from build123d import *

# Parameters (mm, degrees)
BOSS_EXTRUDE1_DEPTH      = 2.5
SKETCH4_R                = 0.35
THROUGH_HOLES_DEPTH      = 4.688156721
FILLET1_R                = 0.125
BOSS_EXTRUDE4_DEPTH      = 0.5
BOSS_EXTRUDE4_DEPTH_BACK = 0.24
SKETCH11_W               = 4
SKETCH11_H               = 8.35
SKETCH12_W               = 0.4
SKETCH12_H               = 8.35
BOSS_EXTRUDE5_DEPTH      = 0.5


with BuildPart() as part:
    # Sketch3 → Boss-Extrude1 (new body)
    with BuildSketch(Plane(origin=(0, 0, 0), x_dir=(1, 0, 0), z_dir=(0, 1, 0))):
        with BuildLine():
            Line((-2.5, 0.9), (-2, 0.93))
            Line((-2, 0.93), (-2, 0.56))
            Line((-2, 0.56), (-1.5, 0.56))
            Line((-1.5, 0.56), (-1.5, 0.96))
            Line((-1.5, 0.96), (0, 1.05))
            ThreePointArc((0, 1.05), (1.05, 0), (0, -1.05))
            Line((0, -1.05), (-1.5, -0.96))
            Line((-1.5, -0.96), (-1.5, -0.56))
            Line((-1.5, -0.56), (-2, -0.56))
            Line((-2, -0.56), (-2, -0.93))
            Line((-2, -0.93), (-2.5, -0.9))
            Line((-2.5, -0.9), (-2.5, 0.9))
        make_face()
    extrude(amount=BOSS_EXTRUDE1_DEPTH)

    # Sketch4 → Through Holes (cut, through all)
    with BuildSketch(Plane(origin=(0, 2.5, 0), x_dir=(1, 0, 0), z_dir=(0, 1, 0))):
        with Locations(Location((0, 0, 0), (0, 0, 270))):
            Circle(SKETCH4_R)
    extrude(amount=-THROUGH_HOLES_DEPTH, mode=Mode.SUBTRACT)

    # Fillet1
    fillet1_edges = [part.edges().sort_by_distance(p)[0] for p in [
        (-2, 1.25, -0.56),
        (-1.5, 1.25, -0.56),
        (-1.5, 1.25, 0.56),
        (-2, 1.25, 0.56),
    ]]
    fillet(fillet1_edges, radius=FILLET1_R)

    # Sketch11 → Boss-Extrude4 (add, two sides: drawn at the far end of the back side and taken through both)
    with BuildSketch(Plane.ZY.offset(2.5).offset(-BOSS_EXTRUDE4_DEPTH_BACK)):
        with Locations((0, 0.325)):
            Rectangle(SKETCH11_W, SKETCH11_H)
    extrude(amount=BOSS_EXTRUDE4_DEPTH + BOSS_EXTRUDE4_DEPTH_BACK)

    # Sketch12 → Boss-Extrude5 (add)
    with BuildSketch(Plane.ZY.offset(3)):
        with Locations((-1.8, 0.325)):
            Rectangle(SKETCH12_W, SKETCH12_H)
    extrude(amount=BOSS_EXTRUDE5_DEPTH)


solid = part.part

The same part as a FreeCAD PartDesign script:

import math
import FreeCAD as App
import Part
import Sketcher


def edges_at(feature, points):
    """Names of the edges that pass closest to the given points."""
    edges = feature.Shape.Edges
    near = lambda p: min(range(len(edges)), key=lambda i: edges[i].distToShape(Part.Vertex(*p))[0])
    return sorted({f"Edge{near(p) + 1}" for p in points})


def add_polygon(sketch, points):
    """Adds a closed chain of lines whose ends are joined by coincident constraints."""
    first, n = sketch.GeometryCount, len(points)
    for a, b in zip(points, points[1:] + points[:1]):
        sketch.addGeometry(Part.LineSegment(App.Vector(*a, 0), App.Vector(*b, 0)), False)
    for i in range(n):
        sketch.addConstraint(Sketcher.Constraint("Coincident", first + i, 2, first + (i + 1) % n, 1))

doc = App.newDocument("Part")
body = doc.addObject("PartDesign::Body", "Body")

# Sketch on XZ plane
sketch1 = body.newObject("Sketcher::SketchObject", "Sketch")
sketch1.AttachmentSupport = (doc.getObject("XZ_Plane"), [""])
sketch1.MapMode = "FlatFace"
sketch1.addGeometry(Part.LineSegment(App.Vector(-2, -0.93, 0), App.Vector(-2.5, -0.9, 0)), False)
sketch1.addGeometry(Part.LineSegment(App.Vector(-2.5, -0.9, 0), App.Vector(-2.5, 0.9, 0)), False)
sketch1.addGeometry(Part.LineSegment(App.Vector(-2.5, 0.9, 0), App.Vector(-2, 0.93, 0)), False)
sketch1.addGeometry(Part.LineSegment(App.Vector(-2, 0.93, 0), App.Vector(-2, 0.56, 0)), False)
sketch1.addGeometry(Part.LineSegment(App.Vector(-2, 0.56, 0), App.Vector(-1.5, 0.56, 0)), False)
sketch1.addGeometry(Part.LineSegment(App.Vector(-1.5, 0.56, 0), App.Vector(-1.5, 0.96, 0)), False)
sketch1.addGeometry(Part.LineSegment(App.Vector(-1.5, 0.96, 0), App.Vector(0, 1.05, 0)), False)
sketch1.addGeometry(Part.ArcOfCircle(Part.Circle(App.Vector(0, 0, 0), App.Vector(0, 0, 1), 1.05), math.radians(-90), math.radians(90)), False)
sketch1.addGeometry(Part.LineSegment(App.Vector(0, -1.05, 0), App.Vector(-1.5, -0.96, 0)), False)
sketch1.addGeometry(Part.LineSegment(App.Vector(-1.5, -0.96, 0), App.Vector(-1.5, -0.56, 0)), False)
sketch1.addGeometry(Part.LineSegment(App.Vector(-1.5, -0.56, 0), App.Vector(-2, -0.56, 0)), False)
sketch1.addGeometry(Part.LineSegment(App.Vector(-2, -0.56, 0), App.Vector(-2, -0.93, 0)), False)
sketch1.addConstraint(Sketcher.Constraint("Coincident", 0, 2, 1, 1))
sketch1.addConstraint(Sketcher.Constraint("Coincident", 1, 2, 2, 1))
sketch1.addConstraint(Sketcher.Constraint("Coincident", 2, 2, 3, 1))
sketch1.addConstraint(Sketcher.Constraint("Coincident", 3, 2, 4, 1))
sketch1.addConstraint(Sketcher.Constraint("Coincident", 4, 2, 5, 1))
sketch1.addConstraint(Sketcher.Constraint("Coincident", 5, 2, 6, 1))
sketch1.addConstraint(Sketcher.Constraint("Coincident", 6, 2, 7, 2))
sketch1.addConstraint(Sketcher.Constraint("Coincident", 7, 1, 8, 1))
sketch1.addConstraint(Sketcher.Constraint("Coincident", 8, 2, 9, 1))
sketch1.addConstraint(Sketcher.Constraint("Coincident", 9, 2, 10, 1))
sketch1.addConstraint(Sketcher.Constraint("Coincident", 10, 2, 11, 1))
sketch1.addConstraint(Sketcher.Constraint("Coincident", 11, 2, 0, 1))
sketch1.addConstraint(Sketcher.Constraint("Vertical", 1))
sketch1.addConstraint(Sketcher.Constraint("Vertical", 3))
sketch1.addConstraint(Sketcher.Constraint("Horizontal", 4))
sketch1.addConstraint(Sketcher.Constraint("Vertical", 5))
sketch1.addConstraint(Sketcher.Constraint("Vertical", 9))
sketch1.addConstraint(Sketcher.Constraint("Horizontal", 10))
sketch1.addConstraint(Sketcher.Constraint("Vertical", 11))
sketch1.addConstraint(Sketcher.Constraint("Coincident", 7, 3, -1, 1))
sketch1.addConstraint(Sketcher.Constraint("Symmetric", 5, 2, 8, 2, -1))
sketch1.addConstraint(Sketcher.Constraint("Symmetric", 3, 2, 10, 2, -1))
sketch1.addConstraint(Sketcher.Constraint("PointOnObject", 6, 2, -2))
sketch1.addConstraint(Sketcher.Constraint("PointOnObject", 7, 1, -2))
sketch1.addConstraint(Sketcher.Constraint("Parallel", 2, 6))
sketch1.addConstraint(Sketcher.Constraint("Parallel", 0, 8))
sketch1.addConstraint(Sketcher.Constraint("Equal", 3, 11))
sketch1.addConstraint(Sketcher.Constraint("Radius", 7, 1.05))
sketch1.addConstraint(Sketcher.Constraint("DistanceX", 4, 1, 4, 2, 0.5))
sketch1.addConstraint(Sketcher.Constraint("DistanceY", 1, 1, 1, 2, 1.8))
sketch1.addConstraint(Sketcher.Constraint("DistanceY", 5, 1, 5, 2, 0.4))
sketch1.addConstraint(Sketcher.Constraint("DistanceX", 2, 2, -1, 1, 2.0))
sketch1.addConstraint(Sketcher.Constraint("DistanceX", 1, 2, 4, 2, 1.0))
sketch1.addConstraint(Sketcher.Constraint("DistanceY", 3, 2, 3, 1, 0.37))
pad1 = body.newObject("PartDesign::Pad", "Pad")
pad1.Profile = sketch1
pad1.Length = 2.5
pad1.Reversed = True

# Sketch on XZ plane
sketch2 = body.newObject("Sketcher::SketchObject", "Sketch001")
sketch2.AttachmentSupport = (doc.getObject("XZ_Plane"), [""])
sketch2.MapMode = "FlatFace"
sketch2.AttachmentOffset = App.Placement(App.Vector(0, 0, -2.5), App.Rotation())
sketch2.addGeometry(Part.Circle(App.Vector(0, 0, 0), App.Vector(0, 0, 1), 0.35), False)
sketch2.addConstraint(Sketcher.Constraint("Coincident", 0, 3, -1, 1))
sketch2.addConstraint(Sketcher.Constraint("Diameter", 0, 0.7))
pocket1 = body.newObject("PartDesign::Pocket", "Pocket")
pocket1.Profile = sketch2
pocket1.Type = "ThroughAll"
pocket1.Reversed = True
doc.recompute()

fillet = body.newObject("PartDesign::Fillet", "Fillet")
fillet.Base = (pocket1, edges_at(pocket1, [
    (-2, 1.25, -0.56),
    (-1.5, 1.25, -0.56),
    (-1.5, 1.25, 0.56),
    (-2, 1.25, 0.56),
]))
fillet.Radius = 0.125

# Sketch on YZ plane
sketch3 = body.newObject("Sketcher::SketchObject", "Sketch002")
sketch3.AttachmentSupport = (doc.getObject("YZ_Plane"), [""])
sketch3.MapMode = "FlatFace"
sketch3.AttachmentOffset = App.Placement(App.Vector(0, 0, -2.5), App.Rotation())
add_polygon(sketch3, [(4.5, -2), (-3.9, -2), (-3.9, 2), (4.5, 2)])  # lines 0-3
sketch3.addConstraint(Sketcher.Constraint("Horizontal", 0))
sketch3.addConstraint(Sketcher.Constraint("Vertical", 1))
sketch3.addConstraint(Sketcher.Constraint("Horizontal", 2))
sketch3.addConstraint(Sketcher.Constraint("Vertical", 3))
sketch3.addConstraint(Sketcher.Constraint("DistanceY", 1, 1, 1, 2, 4.0))
sketch3.addConstraint(Sketcher.Constraint("DistanceY", 0, 2, -1, 1, 2.0))
sketch3.addConstraint(Sketcher.Constraint("DistanceX", 0, 2, 0, 1, 8.35))
sketch3.addConstraint(Sketcher.Constraint("DistanceX", -1, 1, 2, 2, 4.5))
pad2 = body.newObject("PartDesign::Pad", "Pad001")
pad2.Profile = sketch3
pad2.Type = "TwoLengths"
pad2.Length = 0.5
pad2.Length2 = 0.24
pad2.Reversed = True

# Sketch on YZ plane
sketch4 = body.newObject("Sketcher::SketchObject", "Sketch003")
sketch4.AttachmentSupport = (doc.getObject("YZ_Plane"), [""])
sketch4.MapMode = "FlatFace"
sketch4.AttachmentOffset = App.Placement(App.Vector(0, 0, -3), App.Rotation())
add_polygon(sketch4, [(4.5, -2), (-3.85, -2), (-3.85, -1.6), (4.5, -1.6)])  # lines 0-3
sketch4.addConstraint(Sketcher.Constraint("Horizontal", 0))
sketch4.addConstraint(Sketcher.Constraint("Vertical", 1))
sketch4.addConstraint(Sketcher.Constraint("Horizontal", 2))
sketch4.addConstraint(Sketcher.Constraint("Vertical", 3))
sketch4.addConstraint(Sketcher.Constraint("DistanceY", 1, 1, 1, 2, 0.4))
sketch4.addConstraint(Sketcher.Constraint("DistanceY", 0, 2, -1, 1, 2.0))
sketch4.addConstraint(Sketcher.Constraint("DistanceX", 0, 2, 0, 1, 8.35))
sketch4.addConstraint(Sketcher.Constraint("DistanceX", -1, 1, 2, 2, 4.5))
pad3 = body.newObject("PartDesign::Pad", "Pad002")
pad3.Profile = sketch4
pad3.Length = 0.5
pad3.Reversed = True

doc.recompute()
